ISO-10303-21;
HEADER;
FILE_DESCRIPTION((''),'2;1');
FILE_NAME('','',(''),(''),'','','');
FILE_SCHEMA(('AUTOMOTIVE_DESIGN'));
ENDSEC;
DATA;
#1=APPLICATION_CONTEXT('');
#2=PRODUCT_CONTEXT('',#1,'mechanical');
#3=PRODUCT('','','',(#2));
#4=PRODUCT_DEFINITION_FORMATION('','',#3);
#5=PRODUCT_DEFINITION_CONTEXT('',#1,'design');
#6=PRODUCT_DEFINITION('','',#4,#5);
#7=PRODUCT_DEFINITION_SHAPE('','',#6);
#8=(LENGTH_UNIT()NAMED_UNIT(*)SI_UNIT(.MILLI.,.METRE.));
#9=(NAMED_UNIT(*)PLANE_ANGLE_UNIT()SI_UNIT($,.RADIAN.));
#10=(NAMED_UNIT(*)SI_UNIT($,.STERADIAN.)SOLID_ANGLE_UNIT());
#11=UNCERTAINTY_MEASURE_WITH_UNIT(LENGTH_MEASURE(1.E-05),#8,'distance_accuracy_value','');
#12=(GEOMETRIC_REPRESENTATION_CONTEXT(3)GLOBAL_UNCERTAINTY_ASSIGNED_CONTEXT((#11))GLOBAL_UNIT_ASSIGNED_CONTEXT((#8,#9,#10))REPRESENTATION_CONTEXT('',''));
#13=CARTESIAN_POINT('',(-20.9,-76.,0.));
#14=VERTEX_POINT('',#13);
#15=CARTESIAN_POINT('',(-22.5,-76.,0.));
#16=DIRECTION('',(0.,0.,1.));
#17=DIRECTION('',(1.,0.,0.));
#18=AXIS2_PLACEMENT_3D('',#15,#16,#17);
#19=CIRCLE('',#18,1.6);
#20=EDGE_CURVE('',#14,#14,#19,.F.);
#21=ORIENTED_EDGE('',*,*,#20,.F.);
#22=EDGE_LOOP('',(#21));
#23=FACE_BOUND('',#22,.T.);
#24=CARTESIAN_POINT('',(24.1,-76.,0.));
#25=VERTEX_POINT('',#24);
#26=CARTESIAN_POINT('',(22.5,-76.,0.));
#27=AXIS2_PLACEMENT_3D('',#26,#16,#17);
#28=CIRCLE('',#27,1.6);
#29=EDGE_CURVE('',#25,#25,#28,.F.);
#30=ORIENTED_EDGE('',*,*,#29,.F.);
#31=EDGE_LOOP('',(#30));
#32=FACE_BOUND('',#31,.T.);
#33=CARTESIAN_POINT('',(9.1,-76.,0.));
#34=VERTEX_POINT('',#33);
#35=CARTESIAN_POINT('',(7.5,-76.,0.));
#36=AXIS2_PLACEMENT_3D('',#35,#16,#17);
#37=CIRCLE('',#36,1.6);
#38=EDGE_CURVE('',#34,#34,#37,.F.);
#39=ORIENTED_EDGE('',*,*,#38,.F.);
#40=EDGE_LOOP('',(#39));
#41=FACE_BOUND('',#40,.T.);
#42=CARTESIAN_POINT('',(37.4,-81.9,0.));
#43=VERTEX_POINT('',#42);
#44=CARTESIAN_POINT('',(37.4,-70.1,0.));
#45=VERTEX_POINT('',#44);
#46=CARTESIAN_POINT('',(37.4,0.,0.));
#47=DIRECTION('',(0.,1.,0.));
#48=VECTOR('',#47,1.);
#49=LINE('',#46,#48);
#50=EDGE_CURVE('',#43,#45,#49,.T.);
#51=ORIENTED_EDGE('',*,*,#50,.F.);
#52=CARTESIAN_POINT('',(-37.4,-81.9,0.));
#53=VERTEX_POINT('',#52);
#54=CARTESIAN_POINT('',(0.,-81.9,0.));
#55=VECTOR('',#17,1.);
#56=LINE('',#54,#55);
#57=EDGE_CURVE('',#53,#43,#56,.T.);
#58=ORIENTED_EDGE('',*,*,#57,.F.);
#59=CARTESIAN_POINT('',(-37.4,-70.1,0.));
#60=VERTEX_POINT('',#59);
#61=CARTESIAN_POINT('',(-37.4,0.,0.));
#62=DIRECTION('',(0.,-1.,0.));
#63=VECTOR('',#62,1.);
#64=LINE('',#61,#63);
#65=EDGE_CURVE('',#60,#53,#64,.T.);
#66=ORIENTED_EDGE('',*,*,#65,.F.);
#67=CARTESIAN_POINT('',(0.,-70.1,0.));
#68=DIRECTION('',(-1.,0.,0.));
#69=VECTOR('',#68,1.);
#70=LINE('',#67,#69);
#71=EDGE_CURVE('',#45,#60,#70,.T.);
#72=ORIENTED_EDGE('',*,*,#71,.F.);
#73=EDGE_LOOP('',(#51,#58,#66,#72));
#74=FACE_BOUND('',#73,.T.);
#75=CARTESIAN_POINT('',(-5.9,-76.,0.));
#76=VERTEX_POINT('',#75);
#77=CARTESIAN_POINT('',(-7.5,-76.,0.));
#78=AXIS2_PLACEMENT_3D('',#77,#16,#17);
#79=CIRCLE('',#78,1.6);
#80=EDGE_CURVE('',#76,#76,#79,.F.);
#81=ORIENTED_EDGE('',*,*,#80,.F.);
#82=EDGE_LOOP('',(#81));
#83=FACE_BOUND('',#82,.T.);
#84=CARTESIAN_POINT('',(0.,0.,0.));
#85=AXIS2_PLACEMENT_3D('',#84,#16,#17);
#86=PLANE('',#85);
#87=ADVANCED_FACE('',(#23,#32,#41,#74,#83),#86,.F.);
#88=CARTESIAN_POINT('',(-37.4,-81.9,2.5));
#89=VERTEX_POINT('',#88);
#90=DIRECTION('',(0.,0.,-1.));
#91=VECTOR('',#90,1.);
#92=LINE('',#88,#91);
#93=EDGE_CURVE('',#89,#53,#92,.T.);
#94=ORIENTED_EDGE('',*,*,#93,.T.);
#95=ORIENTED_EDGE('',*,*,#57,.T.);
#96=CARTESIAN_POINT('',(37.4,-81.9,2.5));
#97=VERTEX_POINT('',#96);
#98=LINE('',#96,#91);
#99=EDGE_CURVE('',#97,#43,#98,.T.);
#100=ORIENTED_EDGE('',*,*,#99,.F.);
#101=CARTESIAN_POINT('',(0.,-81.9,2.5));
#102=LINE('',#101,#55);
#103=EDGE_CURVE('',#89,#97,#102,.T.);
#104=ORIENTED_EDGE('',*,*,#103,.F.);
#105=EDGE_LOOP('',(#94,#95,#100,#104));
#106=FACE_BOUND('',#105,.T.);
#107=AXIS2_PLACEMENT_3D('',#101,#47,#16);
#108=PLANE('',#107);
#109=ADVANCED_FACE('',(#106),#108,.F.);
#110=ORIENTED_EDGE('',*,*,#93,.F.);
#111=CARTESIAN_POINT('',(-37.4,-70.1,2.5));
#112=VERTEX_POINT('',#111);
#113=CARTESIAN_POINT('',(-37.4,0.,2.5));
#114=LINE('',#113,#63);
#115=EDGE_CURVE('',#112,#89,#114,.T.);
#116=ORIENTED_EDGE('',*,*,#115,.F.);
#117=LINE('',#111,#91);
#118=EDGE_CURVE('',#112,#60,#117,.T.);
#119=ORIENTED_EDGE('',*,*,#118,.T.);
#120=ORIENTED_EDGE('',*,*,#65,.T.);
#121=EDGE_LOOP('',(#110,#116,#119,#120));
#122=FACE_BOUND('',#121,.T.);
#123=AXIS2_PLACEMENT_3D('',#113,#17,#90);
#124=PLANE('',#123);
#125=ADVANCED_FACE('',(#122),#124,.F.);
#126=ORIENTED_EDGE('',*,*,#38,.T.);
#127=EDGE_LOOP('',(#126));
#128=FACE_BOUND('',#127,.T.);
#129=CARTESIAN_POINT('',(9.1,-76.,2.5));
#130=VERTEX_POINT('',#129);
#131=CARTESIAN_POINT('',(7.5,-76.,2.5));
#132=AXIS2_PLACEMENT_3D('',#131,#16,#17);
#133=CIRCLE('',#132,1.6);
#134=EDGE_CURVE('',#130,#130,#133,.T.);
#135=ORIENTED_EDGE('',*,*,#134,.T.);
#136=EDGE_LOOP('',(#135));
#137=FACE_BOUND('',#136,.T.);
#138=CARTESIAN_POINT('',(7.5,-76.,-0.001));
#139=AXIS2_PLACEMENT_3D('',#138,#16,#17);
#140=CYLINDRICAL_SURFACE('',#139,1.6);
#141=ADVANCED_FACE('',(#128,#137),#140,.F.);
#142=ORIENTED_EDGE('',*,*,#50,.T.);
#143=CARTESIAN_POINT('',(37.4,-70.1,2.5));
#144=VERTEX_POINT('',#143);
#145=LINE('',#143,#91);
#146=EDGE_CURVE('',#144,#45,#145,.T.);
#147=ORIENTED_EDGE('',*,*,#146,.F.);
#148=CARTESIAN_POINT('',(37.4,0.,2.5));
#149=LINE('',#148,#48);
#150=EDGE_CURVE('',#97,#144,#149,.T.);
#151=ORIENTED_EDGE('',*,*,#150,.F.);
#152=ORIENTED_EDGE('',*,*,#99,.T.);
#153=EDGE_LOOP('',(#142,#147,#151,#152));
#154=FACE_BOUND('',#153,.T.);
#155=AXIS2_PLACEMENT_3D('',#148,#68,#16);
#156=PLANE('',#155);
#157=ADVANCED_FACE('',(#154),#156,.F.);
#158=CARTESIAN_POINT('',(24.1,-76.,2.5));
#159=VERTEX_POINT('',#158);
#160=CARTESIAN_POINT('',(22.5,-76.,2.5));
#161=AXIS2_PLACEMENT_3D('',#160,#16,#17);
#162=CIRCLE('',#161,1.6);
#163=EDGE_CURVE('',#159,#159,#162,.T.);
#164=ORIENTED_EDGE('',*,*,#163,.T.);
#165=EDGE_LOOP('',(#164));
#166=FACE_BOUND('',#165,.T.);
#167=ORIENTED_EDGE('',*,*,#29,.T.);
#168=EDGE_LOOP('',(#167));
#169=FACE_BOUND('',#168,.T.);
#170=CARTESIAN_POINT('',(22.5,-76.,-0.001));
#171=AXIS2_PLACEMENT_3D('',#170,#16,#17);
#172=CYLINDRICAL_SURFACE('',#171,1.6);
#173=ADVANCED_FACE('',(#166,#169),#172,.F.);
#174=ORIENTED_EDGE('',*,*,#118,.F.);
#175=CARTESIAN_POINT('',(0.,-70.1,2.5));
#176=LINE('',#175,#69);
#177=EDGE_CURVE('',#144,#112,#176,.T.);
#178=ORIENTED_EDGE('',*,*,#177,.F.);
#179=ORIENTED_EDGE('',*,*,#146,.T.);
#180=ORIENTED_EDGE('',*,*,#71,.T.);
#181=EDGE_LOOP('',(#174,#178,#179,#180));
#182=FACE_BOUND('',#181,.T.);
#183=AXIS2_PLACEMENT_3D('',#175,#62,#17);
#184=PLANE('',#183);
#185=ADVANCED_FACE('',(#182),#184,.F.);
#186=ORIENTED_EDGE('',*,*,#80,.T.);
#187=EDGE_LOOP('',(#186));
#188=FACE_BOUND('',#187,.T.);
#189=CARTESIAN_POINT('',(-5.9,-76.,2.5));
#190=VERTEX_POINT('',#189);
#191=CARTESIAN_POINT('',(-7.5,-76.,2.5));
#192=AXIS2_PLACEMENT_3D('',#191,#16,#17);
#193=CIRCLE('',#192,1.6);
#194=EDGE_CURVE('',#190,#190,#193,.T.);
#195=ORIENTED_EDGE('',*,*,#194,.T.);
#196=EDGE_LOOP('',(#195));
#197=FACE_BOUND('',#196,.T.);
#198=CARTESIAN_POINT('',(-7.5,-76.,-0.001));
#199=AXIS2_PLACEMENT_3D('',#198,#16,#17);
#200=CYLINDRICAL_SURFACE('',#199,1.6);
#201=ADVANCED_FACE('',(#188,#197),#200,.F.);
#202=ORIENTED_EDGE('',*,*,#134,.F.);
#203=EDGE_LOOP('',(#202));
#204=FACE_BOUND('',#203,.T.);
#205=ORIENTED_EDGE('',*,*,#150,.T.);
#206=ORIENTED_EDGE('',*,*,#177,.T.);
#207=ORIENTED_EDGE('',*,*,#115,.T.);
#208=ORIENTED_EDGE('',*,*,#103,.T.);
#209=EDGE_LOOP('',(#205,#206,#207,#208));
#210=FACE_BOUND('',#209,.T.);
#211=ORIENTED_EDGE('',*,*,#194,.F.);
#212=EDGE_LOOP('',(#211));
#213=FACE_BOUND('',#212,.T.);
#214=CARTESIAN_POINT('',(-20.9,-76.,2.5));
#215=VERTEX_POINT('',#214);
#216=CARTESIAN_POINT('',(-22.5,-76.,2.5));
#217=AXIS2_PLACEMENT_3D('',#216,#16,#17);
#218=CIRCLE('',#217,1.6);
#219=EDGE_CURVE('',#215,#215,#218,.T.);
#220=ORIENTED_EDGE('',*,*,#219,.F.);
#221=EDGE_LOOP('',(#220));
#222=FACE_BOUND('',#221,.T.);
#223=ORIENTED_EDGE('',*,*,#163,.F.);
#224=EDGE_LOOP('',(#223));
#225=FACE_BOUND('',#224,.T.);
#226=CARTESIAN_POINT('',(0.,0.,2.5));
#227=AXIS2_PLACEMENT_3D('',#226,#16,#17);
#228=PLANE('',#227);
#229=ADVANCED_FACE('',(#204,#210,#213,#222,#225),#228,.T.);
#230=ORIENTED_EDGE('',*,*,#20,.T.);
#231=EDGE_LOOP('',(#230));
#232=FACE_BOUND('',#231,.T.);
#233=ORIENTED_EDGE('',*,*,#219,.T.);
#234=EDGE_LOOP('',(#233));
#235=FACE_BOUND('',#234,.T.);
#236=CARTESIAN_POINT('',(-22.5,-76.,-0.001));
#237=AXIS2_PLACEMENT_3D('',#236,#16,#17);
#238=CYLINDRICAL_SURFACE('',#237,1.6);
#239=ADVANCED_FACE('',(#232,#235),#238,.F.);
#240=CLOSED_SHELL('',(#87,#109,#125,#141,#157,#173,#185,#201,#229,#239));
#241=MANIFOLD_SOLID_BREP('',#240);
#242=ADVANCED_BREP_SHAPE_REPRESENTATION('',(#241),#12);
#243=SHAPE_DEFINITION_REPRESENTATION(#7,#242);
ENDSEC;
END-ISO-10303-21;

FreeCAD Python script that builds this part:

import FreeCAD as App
import Part
import Sketcher


def add_polygon(sketch, points):
    """Adds a closed chain of lines whose ends are joined by coincident constraints."""
    first, n = sketch.GeometryCount, len(points)
    for a, b in zip(points, points[1:] + points[:1]):
        sketch.addGeometry(Part.LineSegment(App.Vector(*a, 0), App.Vector(*b, 0)), False)
    for i in range(n):
        sketch.addConstraint(Sketcher.Constraint("Coincident", first + i, 2, first + (i + 1) % n, 1))

doc = App.newDocument("Part")
body = doc.addObject("PartDesign::Body", "Body")

sketch1 = doc.addObject("Sketcher::SketchObject", "Sketch")
body.addObject(sketch1)
sketch1.AttachmentSupport = (doc.XY_Plane, [""])
sketch1.MapMode = "FlatFace"
add_polygon(sketch1, [(-37.4, -70.1), (-37.4, -81.9), (37.4, -81.9), (37.4, -70.1)])
sketch1.addConstraint([
    Sketcher.Constraint("Vertical", 0),
    Sketcher.Constraint("Horizontal", 1),
    Sketcher.Constraint("Vertical", 2),
    Sketcher.Constraint("Horizontal", 3),
    Sketcher.Constraint("DistanceX", 1, 1, 1, 2, 74.8),
    Sketcher.Constraint("DistanceY", 0, 2, 0, 1, 11.8),
    Sketcher.Constraint("DistanceX", 0, 2, -1, 1, 37.4),
    Sketcher.Constraint("DistanceY", 0, 2, -1, 1, 81.9),
])
pad1 = doc.addObject("PartDesign::Pad", "Pad")
body.addObject(pad1)
pad1.Profile = sketch1
pad1.Length = 2.5

sketch2 = doc.addObject("Sketcher::SketchObject", "Sketch001")
body.addObject(sketch2)
sketch2.AttachmentSupport = (doc.XY_Plane, [""])
sketch2.MapMode = "FlatFace"
sketch2.AttachmentOffset = App.Placement(App.Vector(0, 0, 2.5), App.Rotation())
sketch2.addGeometry(Part.Circle(App.Vector(-22.5, -76, 0), App.Vector(0, 0, 1), 1.6), False)
sketch2.addConstraint([
    Sketcher.Constraint("Diameter", 0, 3.2),
    Sketcher.Constraint("DistanceY", 0, 3, -1, 1, 76.0),
    Sketcher.Constraint("DistanceX", 0, 3, -1, 1, 22.5),
])
pocket1 = doc.addObject("PartDesign::Pocket", "Pocket")
body.addObject(pocket1)
pocket1.Profile = sketch2
pocket1.Type = "UpToFirst"

sketch3 = doc.addObject("Sketcher::SketchObject", "Sketch002")
body.addObject(sketch3)
sketch3.AttachmentSupport = (doc.XY_Plane, [""])
sketch3.MapMode = "FlatFace"
sketch3.AttachmentOffset = App.Placement(App.Vector(0, 0, 2.5), App.Rotation())
sketch3.addGeometry(Part.Circle(App.Vector(22.5, -76, 0), App.Vector(0, 0, 1), 1.6), False)
sketch3.addConstraint([
    Sketcher.Constraint("Diameter", 0, 3.2),
    Sketcher.Constraint("DistanceY", 0, 3, -1, 1, 76.0),
    Sketcher.Constraint("DistanceX", -1, 1, 0, 3, 22.5),
])
pocket2 = doc.addObject("PartDesign::Pocket", "Pocket001")
body.addObject(pocket2)
pocket2.Profile = sketch3
pocket2.Type = "UpToFirst"

sketch4 = doc.addObject("Sketcher::SketchObject", "Sketch003")
body.addObject(sketch4)
sketch4.AttachmentSupport = (doc.XY_Plane, [""])
sketch4.MapMode = "FlatFace"
sketch4.AttachmentOffset = App.Placement(App.Vector(0, 0, 2.5), App.Rotation())
sketch4.addGeometry(Part.Circle(App.Vector(-7.5, -76, 0), App.Vector(0, 0, 1), 1.6), False)
sketch4.addConstraint([
    Sketcher.Constraint("Diameter", 0, 3.2),
    Sketcher.Constraint("DistanceY", 0, 3, -1, 1, 76.0),
    Sketcher.Constraint("DistanceX", 0, 3, -1, 1, 7.5),
])
pocket3 = doc.addObject("PartDesign::Pocket", "Pocket002")
body.addObject(pocket3)
pocket3.Profile = sketch4
pocket3.Type = "UpToFirst"

sketch5 = doc.addObject("Sketcher::SketchObject", "Sketch004")
body.addObject(sketch5)
sketch5.AttachmentSupport = (doc.XY_Plane, [""])
sketch5.MapMode = "FlatFace"
sketch5.AttachmentOffset = App.Placement(App.Vector(0, 0, 2.5), App.Rotation())
sketch5.addGeometry(Part.Circle(App.Vector(7.5, -76, 0), App.Vector(0, 0, 1), 1.6), False)
sketch5.addConstraint([
    Sketcher.Constraint("Diameter", 0, 3.2),
    Sketcher.Constraint("DistanceY", 0, 3, -1, 1, 76.0),
    Sketcher.Constraint("DistanceX", -1, 1, 0, 3, 7.5),
])
pocket4 = doc.addObject("PartDesign::Pocket", "Pocket003")
body.addObject(pocket4)
pocket4.Profile = sketch5
pocket4.Type = "UpToFirst"

doc.recompute()
